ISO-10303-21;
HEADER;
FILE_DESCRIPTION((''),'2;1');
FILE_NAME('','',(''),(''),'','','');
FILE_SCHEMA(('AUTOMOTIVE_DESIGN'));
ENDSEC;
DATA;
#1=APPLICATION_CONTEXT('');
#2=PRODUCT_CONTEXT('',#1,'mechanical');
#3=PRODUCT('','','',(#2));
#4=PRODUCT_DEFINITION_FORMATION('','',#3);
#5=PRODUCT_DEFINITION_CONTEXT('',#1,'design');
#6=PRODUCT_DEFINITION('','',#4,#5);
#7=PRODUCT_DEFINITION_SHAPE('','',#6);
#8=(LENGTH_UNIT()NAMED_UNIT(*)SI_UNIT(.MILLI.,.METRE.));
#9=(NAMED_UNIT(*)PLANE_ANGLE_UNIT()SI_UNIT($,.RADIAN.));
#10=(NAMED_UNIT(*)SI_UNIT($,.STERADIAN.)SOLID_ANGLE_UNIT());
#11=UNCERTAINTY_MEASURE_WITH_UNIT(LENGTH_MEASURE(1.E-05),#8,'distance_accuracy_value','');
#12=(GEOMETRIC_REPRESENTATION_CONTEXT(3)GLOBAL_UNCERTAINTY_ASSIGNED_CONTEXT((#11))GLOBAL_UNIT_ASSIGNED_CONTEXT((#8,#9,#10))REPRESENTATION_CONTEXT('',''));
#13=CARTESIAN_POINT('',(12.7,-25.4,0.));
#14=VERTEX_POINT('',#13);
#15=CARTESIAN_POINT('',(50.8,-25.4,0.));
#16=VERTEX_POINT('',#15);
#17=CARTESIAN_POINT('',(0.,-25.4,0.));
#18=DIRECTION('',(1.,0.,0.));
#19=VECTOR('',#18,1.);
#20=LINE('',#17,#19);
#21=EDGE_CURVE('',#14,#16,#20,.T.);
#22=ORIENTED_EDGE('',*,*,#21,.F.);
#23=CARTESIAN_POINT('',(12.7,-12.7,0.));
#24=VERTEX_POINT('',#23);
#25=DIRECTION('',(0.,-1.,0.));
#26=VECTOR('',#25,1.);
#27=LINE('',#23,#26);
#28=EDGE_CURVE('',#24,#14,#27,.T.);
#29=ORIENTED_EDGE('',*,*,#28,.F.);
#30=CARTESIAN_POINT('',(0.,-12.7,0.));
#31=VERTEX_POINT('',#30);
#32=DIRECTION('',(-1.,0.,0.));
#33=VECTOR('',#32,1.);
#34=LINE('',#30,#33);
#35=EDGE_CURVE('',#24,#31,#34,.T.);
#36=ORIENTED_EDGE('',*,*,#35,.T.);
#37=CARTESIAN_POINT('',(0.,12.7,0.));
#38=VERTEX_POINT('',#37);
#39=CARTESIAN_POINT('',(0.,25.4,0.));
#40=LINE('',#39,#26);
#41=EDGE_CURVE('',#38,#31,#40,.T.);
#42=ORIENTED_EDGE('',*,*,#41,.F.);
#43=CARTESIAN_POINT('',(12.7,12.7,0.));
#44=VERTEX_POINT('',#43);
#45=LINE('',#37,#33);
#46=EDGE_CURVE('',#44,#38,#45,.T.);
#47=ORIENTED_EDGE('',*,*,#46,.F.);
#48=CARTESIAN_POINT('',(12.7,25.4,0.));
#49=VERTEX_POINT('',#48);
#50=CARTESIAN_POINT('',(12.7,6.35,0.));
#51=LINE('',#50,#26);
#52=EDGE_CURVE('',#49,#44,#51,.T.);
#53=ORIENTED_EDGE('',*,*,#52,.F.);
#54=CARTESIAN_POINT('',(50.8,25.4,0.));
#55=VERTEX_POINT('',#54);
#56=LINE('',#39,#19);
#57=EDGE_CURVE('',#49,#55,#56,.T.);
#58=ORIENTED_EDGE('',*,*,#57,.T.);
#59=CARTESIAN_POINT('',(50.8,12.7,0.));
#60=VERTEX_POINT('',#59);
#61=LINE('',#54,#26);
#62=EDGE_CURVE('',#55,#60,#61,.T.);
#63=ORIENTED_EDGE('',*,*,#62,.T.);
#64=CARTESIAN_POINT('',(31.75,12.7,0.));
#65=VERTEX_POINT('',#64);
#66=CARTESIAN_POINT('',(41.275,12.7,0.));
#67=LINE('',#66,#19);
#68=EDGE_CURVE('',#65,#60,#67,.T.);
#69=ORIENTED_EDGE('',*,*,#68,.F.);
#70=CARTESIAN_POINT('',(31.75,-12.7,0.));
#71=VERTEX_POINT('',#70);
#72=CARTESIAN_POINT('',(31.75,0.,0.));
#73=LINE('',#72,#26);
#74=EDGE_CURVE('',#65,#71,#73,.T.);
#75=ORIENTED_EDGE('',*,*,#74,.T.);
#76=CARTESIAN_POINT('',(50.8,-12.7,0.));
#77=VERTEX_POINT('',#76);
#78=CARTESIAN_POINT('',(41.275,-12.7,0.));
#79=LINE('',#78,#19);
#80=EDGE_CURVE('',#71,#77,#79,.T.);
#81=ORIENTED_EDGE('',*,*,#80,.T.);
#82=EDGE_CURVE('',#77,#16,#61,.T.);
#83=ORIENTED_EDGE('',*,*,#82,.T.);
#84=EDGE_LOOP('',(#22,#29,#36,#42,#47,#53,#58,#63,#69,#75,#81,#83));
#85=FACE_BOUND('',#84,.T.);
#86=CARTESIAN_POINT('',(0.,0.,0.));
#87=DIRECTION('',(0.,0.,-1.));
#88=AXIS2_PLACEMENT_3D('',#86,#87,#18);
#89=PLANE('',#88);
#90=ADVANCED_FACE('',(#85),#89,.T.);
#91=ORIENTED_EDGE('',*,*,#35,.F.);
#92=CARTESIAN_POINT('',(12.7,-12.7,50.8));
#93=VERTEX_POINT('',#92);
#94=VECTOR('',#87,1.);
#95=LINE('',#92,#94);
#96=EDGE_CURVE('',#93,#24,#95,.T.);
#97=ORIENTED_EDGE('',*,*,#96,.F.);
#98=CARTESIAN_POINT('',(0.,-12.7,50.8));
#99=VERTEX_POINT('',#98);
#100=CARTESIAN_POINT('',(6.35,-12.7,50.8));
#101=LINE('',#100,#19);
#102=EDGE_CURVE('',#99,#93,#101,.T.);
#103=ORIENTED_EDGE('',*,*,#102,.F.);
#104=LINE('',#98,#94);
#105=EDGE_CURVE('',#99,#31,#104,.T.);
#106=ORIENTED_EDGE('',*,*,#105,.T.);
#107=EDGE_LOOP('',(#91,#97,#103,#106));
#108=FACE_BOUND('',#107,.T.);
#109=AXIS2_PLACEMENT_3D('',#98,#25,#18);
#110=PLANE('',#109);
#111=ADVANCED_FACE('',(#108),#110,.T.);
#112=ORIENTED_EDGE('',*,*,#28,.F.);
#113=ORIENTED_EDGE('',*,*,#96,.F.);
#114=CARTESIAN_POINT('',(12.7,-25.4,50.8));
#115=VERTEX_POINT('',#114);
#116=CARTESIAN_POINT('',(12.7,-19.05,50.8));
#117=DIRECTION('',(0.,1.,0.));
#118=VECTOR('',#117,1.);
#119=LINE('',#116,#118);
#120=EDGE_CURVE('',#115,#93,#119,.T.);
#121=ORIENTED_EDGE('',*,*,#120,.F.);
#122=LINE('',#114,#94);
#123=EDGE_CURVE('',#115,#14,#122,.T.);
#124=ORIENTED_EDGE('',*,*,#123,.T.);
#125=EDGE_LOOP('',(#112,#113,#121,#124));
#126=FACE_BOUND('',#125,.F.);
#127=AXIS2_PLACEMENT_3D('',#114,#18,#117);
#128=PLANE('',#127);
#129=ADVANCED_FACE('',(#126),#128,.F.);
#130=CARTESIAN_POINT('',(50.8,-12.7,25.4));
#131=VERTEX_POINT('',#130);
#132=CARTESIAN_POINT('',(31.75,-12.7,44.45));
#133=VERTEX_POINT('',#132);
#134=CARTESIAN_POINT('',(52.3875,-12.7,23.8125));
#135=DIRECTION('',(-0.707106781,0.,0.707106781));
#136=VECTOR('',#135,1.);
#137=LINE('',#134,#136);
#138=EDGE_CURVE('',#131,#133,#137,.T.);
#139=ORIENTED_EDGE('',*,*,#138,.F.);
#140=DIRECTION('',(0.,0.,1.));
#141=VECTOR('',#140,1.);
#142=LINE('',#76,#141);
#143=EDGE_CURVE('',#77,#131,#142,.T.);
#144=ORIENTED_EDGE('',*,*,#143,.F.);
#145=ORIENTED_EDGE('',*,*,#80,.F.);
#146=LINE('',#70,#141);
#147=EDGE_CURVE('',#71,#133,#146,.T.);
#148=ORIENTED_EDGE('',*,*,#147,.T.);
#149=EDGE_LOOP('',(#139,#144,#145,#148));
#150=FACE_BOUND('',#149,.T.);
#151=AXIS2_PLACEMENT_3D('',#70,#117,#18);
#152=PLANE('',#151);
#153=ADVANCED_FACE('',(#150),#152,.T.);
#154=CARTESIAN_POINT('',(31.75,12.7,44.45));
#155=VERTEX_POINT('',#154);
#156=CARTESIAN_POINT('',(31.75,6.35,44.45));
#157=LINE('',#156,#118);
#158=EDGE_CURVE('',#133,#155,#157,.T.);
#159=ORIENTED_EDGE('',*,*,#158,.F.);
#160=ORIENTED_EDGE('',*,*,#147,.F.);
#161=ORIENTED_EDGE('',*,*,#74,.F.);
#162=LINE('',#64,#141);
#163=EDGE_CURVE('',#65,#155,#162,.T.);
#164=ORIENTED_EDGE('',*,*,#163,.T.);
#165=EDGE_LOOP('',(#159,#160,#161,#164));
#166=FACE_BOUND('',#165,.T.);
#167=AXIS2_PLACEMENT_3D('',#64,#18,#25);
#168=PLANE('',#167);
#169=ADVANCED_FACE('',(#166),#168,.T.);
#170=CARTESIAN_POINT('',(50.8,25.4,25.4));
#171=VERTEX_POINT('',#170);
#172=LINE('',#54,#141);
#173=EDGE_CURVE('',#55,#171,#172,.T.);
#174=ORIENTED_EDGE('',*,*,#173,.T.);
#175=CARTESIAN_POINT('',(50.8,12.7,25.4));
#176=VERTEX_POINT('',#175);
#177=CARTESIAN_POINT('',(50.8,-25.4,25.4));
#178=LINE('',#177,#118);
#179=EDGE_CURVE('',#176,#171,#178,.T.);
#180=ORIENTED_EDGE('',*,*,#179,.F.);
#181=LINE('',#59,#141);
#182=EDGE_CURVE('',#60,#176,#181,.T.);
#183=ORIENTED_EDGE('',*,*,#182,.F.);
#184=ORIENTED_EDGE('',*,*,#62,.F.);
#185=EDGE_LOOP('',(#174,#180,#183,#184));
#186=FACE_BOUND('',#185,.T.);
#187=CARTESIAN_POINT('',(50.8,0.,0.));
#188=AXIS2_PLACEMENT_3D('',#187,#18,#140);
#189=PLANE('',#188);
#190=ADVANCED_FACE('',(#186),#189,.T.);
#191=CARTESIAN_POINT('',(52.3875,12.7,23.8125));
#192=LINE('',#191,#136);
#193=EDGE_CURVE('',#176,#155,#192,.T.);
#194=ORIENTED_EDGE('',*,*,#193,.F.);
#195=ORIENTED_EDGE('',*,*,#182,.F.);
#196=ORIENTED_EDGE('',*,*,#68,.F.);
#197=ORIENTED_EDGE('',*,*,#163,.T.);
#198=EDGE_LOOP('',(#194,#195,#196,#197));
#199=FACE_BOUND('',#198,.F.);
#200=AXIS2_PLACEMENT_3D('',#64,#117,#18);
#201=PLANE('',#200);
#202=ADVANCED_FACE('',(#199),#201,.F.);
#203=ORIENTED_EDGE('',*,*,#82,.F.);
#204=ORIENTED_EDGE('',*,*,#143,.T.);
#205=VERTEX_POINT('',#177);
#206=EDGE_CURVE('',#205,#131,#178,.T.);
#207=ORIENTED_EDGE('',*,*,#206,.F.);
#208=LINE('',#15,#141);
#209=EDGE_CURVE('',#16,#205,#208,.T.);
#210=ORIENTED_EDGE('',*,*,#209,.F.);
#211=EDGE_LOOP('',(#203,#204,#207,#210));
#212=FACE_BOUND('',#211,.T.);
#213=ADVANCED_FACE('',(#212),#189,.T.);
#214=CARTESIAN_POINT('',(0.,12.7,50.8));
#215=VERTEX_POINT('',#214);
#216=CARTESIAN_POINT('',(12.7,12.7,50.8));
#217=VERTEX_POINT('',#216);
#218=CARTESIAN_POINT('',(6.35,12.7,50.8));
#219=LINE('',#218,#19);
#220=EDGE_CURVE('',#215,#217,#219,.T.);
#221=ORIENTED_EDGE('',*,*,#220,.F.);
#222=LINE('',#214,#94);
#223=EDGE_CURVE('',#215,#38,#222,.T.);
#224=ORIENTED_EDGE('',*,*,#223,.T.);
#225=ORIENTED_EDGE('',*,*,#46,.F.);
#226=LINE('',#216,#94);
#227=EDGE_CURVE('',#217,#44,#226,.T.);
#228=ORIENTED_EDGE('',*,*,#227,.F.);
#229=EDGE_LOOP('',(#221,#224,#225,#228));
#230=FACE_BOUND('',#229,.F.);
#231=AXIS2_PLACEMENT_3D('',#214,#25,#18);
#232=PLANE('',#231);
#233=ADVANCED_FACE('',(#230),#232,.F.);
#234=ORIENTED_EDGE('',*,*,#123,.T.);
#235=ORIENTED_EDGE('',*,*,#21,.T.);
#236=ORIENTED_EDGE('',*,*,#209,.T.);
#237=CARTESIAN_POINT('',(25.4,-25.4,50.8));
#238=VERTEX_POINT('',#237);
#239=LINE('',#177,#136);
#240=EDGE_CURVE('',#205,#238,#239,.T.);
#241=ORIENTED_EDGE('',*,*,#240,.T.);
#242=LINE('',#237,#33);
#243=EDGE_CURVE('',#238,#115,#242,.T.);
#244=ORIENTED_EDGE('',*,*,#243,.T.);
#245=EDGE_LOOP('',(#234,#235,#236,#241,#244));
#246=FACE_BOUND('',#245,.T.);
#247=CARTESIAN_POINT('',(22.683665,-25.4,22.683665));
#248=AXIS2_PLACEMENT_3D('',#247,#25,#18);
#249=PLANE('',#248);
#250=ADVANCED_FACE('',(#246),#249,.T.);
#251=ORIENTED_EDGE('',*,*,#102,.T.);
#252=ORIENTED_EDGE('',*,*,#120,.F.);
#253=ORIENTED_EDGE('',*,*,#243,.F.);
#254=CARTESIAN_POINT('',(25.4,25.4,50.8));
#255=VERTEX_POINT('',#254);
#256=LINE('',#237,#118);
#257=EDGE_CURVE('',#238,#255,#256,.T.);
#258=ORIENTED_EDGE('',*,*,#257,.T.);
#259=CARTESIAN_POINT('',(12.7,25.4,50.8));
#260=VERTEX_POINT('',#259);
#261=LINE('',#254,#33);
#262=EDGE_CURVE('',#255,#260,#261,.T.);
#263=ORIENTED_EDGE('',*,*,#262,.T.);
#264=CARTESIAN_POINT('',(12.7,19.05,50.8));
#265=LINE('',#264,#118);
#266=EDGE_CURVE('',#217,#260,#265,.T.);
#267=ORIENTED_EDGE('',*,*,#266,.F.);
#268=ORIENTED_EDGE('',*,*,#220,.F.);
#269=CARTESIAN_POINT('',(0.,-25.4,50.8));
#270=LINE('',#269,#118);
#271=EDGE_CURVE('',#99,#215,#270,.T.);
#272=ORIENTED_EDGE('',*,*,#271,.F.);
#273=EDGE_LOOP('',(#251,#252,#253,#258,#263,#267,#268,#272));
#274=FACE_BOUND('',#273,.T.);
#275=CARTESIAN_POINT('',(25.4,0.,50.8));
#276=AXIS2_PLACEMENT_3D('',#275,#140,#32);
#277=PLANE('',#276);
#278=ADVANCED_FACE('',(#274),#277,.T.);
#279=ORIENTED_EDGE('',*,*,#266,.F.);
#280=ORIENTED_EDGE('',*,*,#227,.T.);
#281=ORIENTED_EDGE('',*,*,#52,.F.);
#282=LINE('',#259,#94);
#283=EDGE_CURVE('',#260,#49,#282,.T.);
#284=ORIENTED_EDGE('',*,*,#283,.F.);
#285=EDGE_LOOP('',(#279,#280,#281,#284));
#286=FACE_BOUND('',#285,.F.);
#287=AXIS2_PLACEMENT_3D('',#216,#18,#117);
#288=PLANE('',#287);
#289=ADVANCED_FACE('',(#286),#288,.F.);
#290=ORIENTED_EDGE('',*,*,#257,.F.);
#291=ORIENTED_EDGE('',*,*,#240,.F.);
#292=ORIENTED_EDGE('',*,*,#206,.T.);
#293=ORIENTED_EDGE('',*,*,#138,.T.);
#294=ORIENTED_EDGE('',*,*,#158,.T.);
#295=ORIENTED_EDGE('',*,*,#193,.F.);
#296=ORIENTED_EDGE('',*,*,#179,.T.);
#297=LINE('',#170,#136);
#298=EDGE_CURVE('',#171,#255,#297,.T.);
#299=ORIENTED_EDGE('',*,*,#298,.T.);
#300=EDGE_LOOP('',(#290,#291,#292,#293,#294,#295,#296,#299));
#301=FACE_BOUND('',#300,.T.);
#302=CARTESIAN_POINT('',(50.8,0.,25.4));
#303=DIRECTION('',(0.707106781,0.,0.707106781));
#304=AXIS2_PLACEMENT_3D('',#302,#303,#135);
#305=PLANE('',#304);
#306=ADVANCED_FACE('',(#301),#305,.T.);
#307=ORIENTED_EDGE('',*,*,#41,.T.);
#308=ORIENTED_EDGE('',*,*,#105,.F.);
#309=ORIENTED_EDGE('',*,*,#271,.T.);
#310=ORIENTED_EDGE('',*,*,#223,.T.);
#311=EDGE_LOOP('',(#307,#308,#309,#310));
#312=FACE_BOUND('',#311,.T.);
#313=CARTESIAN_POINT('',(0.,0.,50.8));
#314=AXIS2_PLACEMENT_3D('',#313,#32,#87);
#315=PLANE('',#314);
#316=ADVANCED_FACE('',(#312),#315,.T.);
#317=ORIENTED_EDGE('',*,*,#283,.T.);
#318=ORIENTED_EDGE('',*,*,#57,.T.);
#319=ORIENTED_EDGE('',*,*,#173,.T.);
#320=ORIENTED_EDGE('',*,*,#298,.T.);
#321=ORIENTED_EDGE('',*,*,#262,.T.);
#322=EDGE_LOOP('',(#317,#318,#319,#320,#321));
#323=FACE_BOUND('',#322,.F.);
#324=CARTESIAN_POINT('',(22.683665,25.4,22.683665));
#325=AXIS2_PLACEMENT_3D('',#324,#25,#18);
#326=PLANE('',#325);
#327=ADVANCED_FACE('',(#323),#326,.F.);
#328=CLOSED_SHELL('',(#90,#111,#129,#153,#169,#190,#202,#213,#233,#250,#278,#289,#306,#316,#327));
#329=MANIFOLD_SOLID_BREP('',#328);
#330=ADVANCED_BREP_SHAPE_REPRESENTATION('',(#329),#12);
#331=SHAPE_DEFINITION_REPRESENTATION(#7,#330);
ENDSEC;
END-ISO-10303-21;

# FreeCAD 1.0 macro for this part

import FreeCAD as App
import Part
import Sketcher
Q = App.Units.Quantity

doc = App.newDocument("Part")
body = doc.addObject("PartDesign::Body", "Body")

# Sketch on XZ plane
sketch1 = body.newObject("Sketcher::SketchObject", "Sketch")
sketch1.AttachmentSupport = (doc.getObject("XZ_Plane"), [""])
sketch1.MapMode = "FlatFace"
sketch1.addGeometry([
    Part.LineSegment(App.Vector(0, 51, 0), App.Vector(0, 0, 0)),  # 0
    Part.LineSegment(App.Vector(0, 0, 0), App.Vector(51, 0, 0)),  # 1
    Part.LineSegment(App.Vector(51, 0, 0), App.Vector(51, 25, 0)),  # 2
    Part.LineSegment(App.Vector(51, 25, 0), App.Vector(25, 51, 0)),  # 3
    Part.LineSegment(App.Vector(25, 51, 0), App.Vector(0, 51, 0)),  # 4
], False)
sketch1.addConstraint([
    Sketcher.Constraint("Coincident", 0, 2, 1, 1),
    Sketcher.Constraint("Coincident", 1, 2, 2, 1),
    Sketcher.Constraint("Coincident", 2, 2, 3, 1),
    Sketcher.Constraint("Coincident", 3, 2, 4, 1),
    Sketcher.Constraint("Coincident", 4, 2, 0, 1),
    Sketcher.Constraint("Vertical", 0),
    Sketcher.Constraint("Horizontal", 1),
    Sketcher.Constraint("Vertical", 2),
    Sketcher.Constraint("Horizontal", 4),
    Sketcher.Constraint("Coincident", 0, 2, -1, 1),
    Sketcher.Constraint("Equal", 1, 0),
    Sketcher.Constraint("Equal", 4, 2),
    Sketcher.Constraint("DistanceX", 1, 1, 1, 2, Q("2 in")),
    Sketcher.Constraint("DistanceX", 4, 2, 4, 1, Q("1 in")),
])
pad1 = body.newObject("PartDesign::Pad", "Pad")
pad1.Profile = sketch1
pad1.Length = Q("2 in")
pad1.Midplane = True

# Sketch on XY plane
sketch2 = body.newObject("Sketcher::SketchObject", "Sketch001")
sketch2.AttachmentSupport = (doc.getObject("XY_Plane"), [""])
sketch2.MapMode = "FlatFace"
sketch2.AttachmentOffset = App.Placement(App.Vector(0, 0, 2 * 25.4), App.Rotation())
sketch2.addGeometry([
    Part.LineSegment(App.Vector(0, 25, 0), App.Vector(0, 13, 0)),  # 0
    Part.LineSegment(App.Vector(0, 13, 0), App.Vector(13, 13, 0)),  # 1
    Part.LineSegment(App.Vector(13, 13, 0), App.Vector(13, 25, 0)),  # 2
    Part.LineSegment(App.Vector(13, 25, 0), App.Vector(0, 25, 0)),  # 3
    Part.LineSegment(App.Vector(0, -13, 0), App.Vector(0, -25, 0)),  # 4
    Part.LineSegment(App.Vector(0, -25, 0), App.Vector(13, -25, 0)),  # 5
    Part.LineSegment(App.Vector(13, -25, 0), App.Vector(13, -13, 0)),  # 6
    Part.LineSegment(App.Vector(13, -13, 0), App.Vector(0, -13, 0)),  # 7
], False)
sketch2.addConstraint([
    Sketcher.Constraint("Coincident", 0, 2, 1, 1),
    Sketcher.Constraint("Coincident", 1, 2, 2, 1),
    Sketcher.Constraint("Coincident", 2, 2, 3, 1),
    Sketcher.Constraint("Coincident", 3, 2, 0, 1),
    Sketcher.Constraint("Coincident", 4, 2, 5, 1),
    Sketcher.Constraint("Coincident", 5, 2, 6, 1),
    Sketcher.Constraint("Coincident", 6, 2, 7, 1),
    Sketcher.Constraint("Coincident", 7, 2, 4, 1),
    Sketcher.Constraint("Vertical", 0),
    Sketcher.Constraint("Horizontal", 1),
    Sketcher.Constraint("Vertical", 2),
    Sketcher.Constraint("Horizontal", 3),
    Sketcher.Constraint("Vertical", 4),
    Sketcher.Constraint("Horizontal", 5),
    Sketcher.Constraint("Vertical", 6),
    Sketcher.Constraint("Horizontal", 7),
    Sketcher.Constraint("Symmetric", 3, 2, 4, 2, -1, 1),
    Sketcher.Constraint("Symmetric", 1, 2, 6, 2, -1),
    Sketcher.Constraint("PointOnObject", 0, 2, -2),
    Sketcher.Constraint("Equal", 7, 0),
    Sketcher.Constraint("DistanceX", 1, 1, 1, 2, Q("0.5 in")),
    Sketcher.Constraint("DistanceY", -1, 1, 2, 2, Q("1 in")),
])
pocket1 = body.newObject("PartDesign::Pocket", "Pocket")
pocket1.Profile = sketch2
pocket1.Type = "ThroughAll"

# Sketch on XY plane
sketch3 = body.newObject("Sketcher::SketchObject", "Sketch002")
sketch3.AttachmentSupport = (doc.getObject("XY_Plane"), [""])
sketch3.MapMode = "FlatFace"
sketch3.addGeometry([
    Part.LineSegment(App.Vector(32, -13, 0), App.Vector(32, 13, 0)),
    Part.LineSegment(App.Vector(32, 13, 0), App.Vector(51, 13, 0)),
    Part.LineSegment(App.Vector(51, 13, 0), App.Vector(51, -13, 0)),
    Part.LineSegment(App.Vector(51, -13, 0), App.Vector(32, -13, 0)),
], False)
sketch3.addConstraint([
    Sketcher.Constraint("Coincident", 0, 2, 1, 1),
    Sketcher.Constraint("Coincident", 1, 2, 2, 1),
    Sketcher.Constraint("Coincident", 2, 2, 3, 1),
    Sketcher.Constraint("Coincident", 3, 2, 0, 1),
    Sketcher.Constraint("Vertical", 0),
    Sketcher.Constraint("Horizontal", 1),
    Sketcher.Constraint("Vertical", 2),
    Sketcher.Constraint("Horizontal", 3),
    Sketcher.Constraint("DistanceY", 0, 1, 0, 2, Q("1 in")),
    Sketcher.Constraint("DistanceX", -1, 1, 1, 2, Q("2 in")),
    Sketcher.Constraint("DistanceX", 1, 1, 1, 2, Q("0.75 in")),
    Sketcher.Constraint("DistanceY", -1, 1, 0, 2, Q("0.5 in")),
])
pocket2 = body.newObject("PartDesign::Pocket", "Pocket001")
pocket2.Profile = sketch3
pocket2.Type = "ThroughAll"
pocket2.Reversed = True

doc.recompute()
